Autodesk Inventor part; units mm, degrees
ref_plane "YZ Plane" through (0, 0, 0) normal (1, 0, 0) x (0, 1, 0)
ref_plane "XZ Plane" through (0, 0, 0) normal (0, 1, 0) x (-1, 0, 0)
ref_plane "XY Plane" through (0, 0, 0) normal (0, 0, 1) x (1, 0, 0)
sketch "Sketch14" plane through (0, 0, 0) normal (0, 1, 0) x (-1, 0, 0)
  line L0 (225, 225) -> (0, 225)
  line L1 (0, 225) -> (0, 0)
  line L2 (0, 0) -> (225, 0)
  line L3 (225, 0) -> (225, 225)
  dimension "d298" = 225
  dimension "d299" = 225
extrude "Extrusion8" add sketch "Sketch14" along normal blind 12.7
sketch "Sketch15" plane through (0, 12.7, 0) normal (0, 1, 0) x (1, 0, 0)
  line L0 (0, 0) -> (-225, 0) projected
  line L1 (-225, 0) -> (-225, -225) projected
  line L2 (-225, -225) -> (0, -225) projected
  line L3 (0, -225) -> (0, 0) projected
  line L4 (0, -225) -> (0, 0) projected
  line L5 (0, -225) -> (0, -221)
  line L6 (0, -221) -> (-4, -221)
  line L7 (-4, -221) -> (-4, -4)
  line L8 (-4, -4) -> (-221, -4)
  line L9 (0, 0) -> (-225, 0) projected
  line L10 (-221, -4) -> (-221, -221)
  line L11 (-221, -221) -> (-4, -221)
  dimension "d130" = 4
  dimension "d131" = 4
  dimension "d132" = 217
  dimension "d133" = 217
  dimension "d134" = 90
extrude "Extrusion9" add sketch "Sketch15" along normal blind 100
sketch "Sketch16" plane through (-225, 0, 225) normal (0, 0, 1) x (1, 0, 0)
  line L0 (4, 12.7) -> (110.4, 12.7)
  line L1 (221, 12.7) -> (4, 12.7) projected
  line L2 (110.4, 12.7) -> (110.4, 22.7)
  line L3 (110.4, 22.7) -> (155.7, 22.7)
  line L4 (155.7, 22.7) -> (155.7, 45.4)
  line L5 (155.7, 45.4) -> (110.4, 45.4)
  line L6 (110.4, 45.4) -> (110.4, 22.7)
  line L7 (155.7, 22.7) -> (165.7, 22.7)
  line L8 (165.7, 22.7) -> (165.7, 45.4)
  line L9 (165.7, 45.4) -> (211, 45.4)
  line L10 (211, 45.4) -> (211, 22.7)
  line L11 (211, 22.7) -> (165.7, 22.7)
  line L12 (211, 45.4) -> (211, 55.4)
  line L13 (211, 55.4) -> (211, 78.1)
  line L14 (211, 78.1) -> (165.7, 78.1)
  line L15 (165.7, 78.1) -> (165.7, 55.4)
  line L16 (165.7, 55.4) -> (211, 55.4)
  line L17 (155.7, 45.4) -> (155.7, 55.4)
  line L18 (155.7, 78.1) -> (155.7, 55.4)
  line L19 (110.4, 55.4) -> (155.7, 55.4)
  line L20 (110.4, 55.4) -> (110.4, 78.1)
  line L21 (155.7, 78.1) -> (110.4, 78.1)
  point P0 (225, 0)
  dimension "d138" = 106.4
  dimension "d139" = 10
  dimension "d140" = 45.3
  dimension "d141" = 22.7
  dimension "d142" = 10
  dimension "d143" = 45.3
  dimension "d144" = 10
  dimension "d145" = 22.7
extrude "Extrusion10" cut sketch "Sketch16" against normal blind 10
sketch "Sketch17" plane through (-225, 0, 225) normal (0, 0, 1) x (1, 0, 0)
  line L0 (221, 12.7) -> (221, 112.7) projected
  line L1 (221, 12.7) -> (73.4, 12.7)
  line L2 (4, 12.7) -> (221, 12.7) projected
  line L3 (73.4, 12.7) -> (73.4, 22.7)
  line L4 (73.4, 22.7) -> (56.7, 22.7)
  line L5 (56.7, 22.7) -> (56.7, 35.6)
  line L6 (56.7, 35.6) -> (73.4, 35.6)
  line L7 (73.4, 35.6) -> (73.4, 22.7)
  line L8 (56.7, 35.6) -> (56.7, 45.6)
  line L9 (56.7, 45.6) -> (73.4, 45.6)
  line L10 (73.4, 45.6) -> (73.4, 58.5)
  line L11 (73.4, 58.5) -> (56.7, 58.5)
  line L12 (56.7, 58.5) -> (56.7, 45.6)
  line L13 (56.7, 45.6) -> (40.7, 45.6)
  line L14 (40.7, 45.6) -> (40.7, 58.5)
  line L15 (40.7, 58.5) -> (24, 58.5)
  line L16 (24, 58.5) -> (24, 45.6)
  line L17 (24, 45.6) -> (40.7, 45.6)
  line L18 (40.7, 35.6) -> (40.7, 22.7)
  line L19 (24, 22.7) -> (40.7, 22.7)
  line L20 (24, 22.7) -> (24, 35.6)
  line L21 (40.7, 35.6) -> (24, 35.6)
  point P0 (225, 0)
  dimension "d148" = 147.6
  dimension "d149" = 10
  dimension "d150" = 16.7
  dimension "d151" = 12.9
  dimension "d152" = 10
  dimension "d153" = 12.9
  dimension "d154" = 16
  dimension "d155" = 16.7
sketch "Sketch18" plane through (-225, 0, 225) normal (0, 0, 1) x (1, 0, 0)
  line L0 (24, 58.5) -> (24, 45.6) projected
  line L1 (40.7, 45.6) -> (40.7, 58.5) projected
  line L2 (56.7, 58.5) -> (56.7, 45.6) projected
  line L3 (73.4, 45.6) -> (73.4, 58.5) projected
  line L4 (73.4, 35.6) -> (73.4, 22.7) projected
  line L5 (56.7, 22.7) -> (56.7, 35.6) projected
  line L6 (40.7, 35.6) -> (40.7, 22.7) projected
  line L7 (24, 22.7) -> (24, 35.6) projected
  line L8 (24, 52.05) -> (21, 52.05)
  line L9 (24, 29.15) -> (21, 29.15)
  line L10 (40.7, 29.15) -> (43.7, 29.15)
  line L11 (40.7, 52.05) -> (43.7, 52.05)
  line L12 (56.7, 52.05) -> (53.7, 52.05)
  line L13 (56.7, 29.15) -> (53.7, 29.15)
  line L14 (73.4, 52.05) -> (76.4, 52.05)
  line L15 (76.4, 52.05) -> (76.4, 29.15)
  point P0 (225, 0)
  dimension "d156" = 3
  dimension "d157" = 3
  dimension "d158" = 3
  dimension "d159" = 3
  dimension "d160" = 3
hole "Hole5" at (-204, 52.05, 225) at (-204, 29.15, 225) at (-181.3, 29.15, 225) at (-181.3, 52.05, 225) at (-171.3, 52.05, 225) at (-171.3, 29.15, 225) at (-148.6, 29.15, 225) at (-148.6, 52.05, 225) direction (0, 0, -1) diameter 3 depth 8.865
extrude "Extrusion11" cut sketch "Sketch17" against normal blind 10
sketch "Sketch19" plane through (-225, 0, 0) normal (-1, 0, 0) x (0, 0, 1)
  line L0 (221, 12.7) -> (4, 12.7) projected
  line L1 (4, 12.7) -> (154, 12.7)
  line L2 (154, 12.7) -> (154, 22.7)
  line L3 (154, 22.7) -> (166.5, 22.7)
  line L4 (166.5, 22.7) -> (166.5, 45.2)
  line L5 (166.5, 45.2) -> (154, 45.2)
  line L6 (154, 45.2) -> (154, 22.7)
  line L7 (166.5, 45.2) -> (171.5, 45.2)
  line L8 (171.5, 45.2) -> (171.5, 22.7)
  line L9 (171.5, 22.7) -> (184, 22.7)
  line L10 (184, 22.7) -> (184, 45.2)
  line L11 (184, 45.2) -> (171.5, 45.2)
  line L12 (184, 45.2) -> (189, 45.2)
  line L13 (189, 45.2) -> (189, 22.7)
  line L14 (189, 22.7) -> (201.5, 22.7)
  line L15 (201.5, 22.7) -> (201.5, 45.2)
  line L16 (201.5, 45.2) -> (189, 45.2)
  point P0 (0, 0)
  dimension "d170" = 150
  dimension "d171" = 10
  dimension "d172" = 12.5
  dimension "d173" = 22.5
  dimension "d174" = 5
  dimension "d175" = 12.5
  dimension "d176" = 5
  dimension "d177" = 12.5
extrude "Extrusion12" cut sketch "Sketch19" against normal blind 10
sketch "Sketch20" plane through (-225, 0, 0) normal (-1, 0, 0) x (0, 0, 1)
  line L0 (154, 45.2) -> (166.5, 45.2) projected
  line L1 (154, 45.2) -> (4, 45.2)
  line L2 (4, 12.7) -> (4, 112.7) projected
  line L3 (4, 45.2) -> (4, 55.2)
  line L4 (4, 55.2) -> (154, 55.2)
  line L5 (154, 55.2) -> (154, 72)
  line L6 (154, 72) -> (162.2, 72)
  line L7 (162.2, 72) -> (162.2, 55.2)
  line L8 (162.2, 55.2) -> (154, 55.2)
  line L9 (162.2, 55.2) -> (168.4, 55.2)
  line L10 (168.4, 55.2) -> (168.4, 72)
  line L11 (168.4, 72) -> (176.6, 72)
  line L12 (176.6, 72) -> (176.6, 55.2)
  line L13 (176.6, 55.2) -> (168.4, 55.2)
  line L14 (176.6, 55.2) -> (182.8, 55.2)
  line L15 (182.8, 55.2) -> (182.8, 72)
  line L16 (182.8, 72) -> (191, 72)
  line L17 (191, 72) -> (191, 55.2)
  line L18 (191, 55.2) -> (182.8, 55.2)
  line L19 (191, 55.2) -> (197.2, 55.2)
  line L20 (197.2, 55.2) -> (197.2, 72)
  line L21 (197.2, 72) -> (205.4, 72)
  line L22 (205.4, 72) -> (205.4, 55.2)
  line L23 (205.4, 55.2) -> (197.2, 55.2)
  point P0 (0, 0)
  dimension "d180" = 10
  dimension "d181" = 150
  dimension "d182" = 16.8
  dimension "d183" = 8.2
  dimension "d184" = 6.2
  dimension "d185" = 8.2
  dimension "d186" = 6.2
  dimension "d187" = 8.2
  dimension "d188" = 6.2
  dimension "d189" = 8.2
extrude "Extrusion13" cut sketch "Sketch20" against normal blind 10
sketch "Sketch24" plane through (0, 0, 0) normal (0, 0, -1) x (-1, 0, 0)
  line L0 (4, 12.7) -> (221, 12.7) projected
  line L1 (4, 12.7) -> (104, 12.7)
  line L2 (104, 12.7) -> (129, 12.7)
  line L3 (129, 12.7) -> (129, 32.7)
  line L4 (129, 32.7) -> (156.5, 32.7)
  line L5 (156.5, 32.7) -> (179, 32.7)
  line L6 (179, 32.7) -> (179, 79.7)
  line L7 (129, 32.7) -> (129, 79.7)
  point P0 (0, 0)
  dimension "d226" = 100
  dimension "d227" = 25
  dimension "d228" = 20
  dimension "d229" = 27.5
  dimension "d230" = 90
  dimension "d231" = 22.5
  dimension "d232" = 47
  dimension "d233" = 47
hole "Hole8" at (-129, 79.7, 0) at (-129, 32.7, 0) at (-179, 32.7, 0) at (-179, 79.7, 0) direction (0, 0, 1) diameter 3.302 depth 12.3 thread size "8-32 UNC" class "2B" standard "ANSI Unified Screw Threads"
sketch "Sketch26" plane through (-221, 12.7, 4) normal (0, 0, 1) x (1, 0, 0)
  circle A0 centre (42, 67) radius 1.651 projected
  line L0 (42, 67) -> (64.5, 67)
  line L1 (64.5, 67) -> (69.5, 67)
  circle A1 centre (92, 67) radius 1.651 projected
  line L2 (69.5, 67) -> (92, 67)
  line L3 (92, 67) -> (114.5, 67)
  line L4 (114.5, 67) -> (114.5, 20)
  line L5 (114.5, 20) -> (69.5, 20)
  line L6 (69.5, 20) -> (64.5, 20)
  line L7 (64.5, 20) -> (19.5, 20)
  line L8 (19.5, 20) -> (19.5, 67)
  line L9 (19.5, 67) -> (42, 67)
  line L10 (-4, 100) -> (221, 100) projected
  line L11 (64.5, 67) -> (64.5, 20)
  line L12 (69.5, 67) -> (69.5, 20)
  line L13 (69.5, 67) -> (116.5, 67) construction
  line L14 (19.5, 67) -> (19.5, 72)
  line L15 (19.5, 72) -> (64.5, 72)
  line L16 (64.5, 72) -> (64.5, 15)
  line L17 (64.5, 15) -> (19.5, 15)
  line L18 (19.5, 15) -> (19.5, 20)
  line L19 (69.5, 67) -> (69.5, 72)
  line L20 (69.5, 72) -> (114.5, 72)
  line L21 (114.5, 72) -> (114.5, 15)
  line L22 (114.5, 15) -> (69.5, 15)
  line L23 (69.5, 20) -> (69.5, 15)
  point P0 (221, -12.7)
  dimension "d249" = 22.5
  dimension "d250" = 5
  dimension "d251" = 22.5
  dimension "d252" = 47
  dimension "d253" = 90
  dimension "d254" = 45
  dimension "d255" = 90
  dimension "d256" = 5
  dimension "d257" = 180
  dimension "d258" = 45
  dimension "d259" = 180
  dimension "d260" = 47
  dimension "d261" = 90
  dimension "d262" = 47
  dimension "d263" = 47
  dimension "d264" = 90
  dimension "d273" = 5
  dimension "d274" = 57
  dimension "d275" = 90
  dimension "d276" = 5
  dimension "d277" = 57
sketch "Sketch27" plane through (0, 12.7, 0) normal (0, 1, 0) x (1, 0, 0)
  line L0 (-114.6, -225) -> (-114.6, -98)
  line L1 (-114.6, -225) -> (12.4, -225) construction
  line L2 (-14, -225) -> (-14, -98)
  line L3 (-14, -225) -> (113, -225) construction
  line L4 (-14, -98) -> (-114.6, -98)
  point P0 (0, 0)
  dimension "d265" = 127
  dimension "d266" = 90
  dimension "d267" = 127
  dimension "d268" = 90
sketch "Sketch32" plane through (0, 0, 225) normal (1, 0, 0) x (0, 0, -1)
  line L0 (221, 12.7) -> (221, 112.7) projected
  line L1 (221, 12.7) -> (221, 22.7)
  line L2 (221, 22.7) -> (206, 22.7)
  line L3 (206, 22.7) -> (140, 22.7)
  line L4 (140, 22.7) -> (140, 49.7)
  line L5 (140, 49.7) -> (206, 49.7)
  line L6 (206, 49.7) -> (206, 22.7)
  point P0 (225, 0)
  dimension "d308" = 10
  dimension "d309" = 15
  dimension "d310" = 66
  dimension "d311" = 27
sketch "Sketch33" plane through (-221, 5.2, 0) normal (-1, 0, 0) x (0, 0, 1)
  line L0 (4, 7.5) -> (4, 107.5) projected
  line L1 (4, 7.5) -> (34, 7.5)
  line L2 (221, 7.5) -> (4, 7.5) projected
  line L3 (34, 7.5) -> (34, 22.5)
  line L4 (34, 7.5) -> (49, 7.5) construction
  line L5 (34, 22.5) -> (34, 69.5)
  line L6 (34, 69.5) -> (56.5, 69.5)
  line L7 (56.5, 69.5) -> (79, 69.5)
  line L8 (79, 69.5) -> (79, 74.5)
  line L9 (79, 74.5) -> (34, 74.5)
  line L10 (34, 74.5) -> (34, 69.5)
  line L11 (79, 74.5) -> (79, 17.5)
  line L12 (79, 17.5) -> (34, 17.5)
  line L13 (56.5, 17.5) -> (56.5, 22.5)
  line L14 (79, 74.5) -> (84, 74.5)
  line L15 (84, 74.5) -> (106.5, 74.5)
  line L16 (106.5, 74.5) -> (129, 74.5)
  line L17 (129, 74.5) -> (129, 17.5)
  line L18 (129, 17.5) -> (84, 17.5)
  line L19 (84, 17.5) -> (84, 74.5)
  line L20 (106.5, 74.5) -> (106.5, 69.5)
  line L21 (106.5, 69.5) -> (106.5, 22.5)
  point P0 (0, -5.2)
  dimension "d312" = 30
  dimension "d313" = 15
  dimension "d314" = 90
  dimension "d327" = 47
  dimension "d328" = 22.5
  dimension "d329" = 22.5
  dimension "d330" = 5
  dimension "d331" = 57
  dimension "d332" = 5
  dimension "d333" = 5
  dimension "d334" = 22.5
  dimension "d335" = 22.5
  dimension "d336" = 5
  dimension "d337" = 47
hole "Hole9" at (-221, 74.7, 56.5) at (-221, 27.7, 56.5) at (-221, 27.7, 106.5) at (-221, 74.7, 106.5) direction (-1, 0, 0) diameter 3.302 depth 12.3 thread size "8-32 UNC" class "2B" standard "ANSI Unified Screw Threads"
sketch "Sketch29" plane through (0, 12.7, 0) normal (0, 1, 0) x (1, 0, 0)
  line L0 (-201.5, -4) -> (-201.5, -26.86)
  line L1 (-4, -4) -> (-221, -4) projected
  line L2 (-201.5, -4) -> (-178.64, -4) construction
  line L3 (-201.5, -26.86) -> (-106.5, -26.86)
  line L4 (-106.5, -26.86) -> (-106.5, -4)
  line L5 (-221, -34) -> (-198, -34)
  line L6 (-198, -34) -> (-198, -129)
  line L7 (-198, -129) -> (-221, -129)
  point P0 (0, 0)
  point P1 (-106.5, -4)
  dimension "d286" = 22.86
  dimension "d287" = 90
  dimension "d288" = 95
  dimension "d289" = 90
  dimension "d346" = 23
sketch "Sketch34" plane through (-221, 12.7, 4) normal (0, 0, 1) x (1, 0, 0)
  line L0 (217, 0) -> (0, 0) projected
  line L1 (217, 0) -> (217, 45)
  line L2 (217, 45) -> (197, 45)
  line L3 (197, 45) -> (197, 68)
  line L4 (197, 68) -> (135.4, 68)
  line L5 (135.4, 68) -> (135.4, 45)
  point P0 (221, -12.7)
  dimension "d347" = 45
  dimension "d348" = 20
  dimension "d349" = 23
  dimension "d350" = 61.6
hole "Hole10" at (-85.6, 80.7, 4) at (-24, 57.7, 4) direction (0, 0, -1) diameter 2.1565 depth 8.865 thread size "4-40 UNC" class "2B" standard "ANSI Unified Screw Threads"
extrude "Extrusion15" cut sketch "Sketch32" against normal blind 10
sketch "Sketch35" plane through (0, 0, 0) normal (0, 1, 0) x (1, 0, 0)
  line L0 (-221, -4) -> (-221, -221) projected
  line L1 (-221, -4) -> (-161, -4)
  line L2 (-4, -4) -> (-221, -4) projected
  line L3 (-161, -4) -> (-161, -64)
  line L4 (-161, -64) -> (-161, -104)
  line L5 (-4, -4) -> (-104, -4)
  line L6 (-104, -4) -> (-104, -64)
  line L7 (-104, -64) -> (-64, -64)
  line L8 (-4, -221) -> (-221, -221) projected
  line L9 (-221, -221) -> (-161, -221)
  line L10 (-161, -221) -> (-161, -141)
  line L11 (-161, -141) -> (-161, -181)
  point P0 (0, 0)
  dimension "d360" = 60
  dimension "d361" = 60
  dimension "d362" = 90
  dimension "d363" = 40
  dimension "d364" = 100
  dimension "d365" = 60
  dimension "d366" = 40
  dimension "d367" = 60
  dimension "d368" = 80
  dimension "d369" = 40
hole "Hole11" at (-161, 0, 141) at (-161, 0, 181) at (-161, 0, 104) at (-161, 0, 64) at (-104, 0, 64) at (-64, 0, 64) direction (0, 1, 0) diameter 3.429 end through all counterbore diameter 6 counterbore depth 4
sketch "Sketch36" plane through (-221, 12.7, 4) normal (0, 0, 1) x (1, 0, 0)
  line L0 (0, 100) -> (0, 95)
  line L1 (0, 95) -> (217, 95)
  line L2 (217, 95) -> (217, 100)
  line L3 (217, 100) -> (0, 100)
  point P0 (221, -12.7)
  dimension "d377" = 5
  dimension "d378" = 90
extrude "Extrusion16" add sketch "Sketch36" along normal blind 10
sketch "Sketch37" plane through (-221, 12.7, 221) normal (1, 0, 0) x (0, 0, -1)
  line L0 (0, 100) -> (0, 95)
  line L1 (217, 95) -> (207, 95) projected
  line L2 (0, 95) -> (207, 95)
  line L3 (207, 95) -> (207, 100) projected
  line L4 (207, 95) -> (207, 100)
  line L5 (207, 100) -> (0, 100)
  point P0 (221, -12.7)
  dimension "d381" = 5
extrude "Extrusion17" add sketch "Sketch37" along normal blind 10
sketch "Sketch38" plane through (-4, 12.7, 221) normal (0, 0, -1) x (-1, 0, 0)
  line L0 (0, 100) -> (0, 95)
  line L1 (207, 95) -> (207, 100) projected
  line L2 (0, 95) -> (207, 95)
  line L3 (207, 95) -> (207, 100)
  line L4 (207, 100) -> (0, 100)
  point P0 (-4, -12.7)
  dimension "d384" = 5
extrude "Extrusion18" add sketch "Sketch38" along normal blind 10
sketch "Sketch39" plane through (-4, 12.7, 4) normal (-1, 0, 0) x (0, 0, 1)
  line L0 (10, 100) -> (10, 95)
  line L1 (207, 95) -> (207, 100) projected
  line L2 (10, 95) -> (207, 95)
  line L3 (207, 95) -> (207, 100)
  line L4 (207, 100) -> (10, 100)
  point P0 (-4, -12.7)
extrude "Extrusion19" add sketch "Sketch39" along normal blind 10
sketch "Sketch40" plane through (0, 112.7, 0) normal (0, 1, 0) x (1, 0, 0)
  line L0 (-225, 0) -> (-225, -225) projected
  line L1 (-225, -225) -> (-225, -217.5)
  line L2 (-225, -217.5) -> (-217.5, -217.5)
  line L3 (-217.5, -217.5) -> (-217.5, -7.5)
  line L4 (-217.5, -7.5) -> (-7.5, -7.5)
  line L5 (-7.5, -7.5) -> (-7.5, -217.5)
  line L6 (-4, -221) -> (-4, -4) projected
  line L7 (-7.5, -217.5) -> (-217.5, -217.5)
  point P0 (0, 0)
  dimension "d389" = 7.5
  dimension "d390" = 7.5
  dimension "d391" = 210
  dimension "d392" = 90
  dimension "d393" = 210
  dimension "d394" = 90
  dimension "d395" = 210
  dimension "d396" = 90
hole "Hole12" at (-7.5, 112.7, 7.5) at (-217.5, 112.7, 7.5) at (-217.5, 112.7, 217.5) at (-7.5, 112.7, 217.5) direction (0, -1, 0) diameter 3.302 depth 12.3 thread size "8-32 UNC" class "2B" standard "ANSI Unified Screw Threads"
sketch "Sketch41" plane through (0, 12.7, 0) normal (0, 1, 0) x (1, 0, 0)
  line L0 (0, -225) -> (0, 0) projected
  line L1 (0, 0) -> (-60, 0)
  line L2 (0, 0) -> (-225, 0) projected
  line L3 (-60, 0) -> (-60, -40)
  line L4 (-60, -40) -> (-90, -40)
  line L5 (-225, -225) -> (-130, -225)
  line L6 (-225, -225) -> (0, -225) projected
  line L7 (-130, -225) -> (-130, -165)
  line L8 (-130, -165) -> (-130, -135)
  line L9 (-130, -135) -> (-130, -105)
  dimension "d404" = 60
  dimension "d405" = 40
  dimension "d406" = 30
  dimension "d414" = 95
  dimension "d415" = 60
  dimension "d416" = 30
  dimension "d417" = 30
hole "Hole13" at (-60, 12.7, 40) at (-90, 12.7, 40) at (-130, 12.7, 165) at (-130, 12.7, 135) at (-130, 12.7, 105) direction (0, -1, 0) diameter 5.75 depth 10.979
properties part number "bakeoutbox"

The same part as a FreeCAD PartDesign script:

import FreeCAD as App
import Part
import Sketcher

doc = App.newDocument("Part")
body = doc.addObject("PartDesign::Body", "Body")

# Sketch on XZ plane
sketch1 = doc.addObject("Sketcher::SketchObject", "Sketch")
body.addObject(sketch1)
sketch1.AttachmentSupport = (doc.XZ_Plane, [""])
sketch1.MapMode = "FlatFace"
sketch1.addGeometry([
    Part.LineSegment(App.Vector(-225, 0, 0), App.Vector(-225, 225, 0)),
    Part.LineSegment(App.Vector(-225, 225, 0), App.Vector(0, 225, 0)),
    Part.LineSegment(App.Vector(0, 225, 0), App.Vector(0, 0, 0)),
    Part.LineSegment(App.Vector(0, 0, 0), App.Vector(-225, 0, 0)),
], False)
sketch1.addConstraint([
    Sketcher.Constraint("Coincident", 0, 2, 1, 1),
    Sketcher.Constraint("Coincident", 1, 2, 2, 1),
    Sketcher.Constraint("Coincident", 2, 2, 3, 1),
    Sketcher.Constraint("Coincident", 3, 2, 0, 1),
    Sketcher.Constraint("Vertical", 0),
    Sketcher.Constraint("Horizontal", 1),
    Sketcher.Constraint("Vertical", 2),
    Sketcher.Constraint("Horizontal", 3),
    Sketcher.Constraint("Coincident", 2, 2, -1, 1),
    Sketcher.Constraint("Equal", 3, 0),
    Sketcher.Constraint("DistanceX", 1, 1, 1, 2, 225.0),
])
pad1 = doc.addObject("PartDesign::Pad", "Pad")
body.addObject(pad1)
pad1.Profile = sketch1
pad1.Length = 12.7
pad1.Reversed = True

# Sketch on XZ plane
sketch2 = doc.addObject("Sketcher::SketchObject", "Sketch001")
body.addObject(sketch2)
sketch2.AttachmentSupport = (doc.XZ_Plane, [""])
sketch2.MapMode = "FlatFace"
sketch2.AttachmentOffset = App.Placement(App.Vector(0, 0, -12.7), App.Rotation())
sketch2.addGeometry([
    Part.LineSegment(App.Vector(0, 221, 0), App.Vector(0, 0, 0)),  # 0
    Part.LineSegment(App.Vector(0, 0, 0), App.Vector(-225, 0, 0)),  # 1
    Part.LineSegment(App.Vector(-225, 0, 0), App.Vector(-225, 225, 0)),  # 2
    Part.LineSegment(App.Vector(-225, 225, 0), App.Vector(0, 225, 0)),  # 3
    Part.LineSegment(App.Vector(0, 225, 0), App.Vector(0, 221, 0)),  # 4
    Part.LineSegment(App.Vector(-4, 4, 0), App.Vector(-4, 221, 0)),  # 5
    Part.LineSegment(App.Vector(-4, 221, 0), App.Vector(-221, 221, 0)),  # 6
    Part.LineSegment(App.Vector(-221, 221, 0), App.Vector(-221, 4, 0)),  # 7
    Part.LineSegment(App.Vector(-221, 4, 0), App.Vector(-4, 4, 0)),  # 8
], False)
sketch2.addConstraint([
    Sketcher.Constraint("Coincident", 0, 2, 1, 1),
    Sketcher.Constraint("Coincident", 1, 2, 2, 1),
    Sketcher.Constraint("Coincident", 2, 2, 3, 1),
    Sketcher.Constraint("Coincident", 3, 2, 4, 1),
    Sketcher.Constraint("Coincident", 4, 2, 0, 1),
    Sketcher.Constraint("Coincident", 5, 2, 6, 1),
    Sketcher.Constraint("Coincident", 6, 2, 7, 1),
    Sketcher.Constraint("Coincident", 7, 2, 8, 1),
    Sketcher.Constraint("Coincident", 8, 2, 5, 1),
    Sketcher.Constraint("Vertical", 0),
    Sketcher.Constraint("Horizontal", 1),
    Sketcher.Constraint("Vertical", 2),
    Sketcher.Constraint("Horizontal", 3),
    Sketcher.Constraint("Vertical", 4),
    Sketcher.Constraint("Vertical", 5),
    Sketcher.Constraint("Horizontal", 6),
    Sketcher.Constraint("Vertical", 7),
    Sketcher.Constraint("Horizontal", 8),
    Sketcher.Constraint("Coincident", 0, 2, -1, 1),
    Sketcher.Constraint("Horizontal", 4, 2, 5, 2),
    Sketcher.Constraint("Equal", 3, 2),
    Sketcher.Constraint("Equal", 8, 5),
    Sketcher.Constraint("DistanceX", 6, 2, 6, 1, 217.0),
    Sketcher.Constraint("DistanceY", 4, 2, 4, 1, 4.0),
    Sketcher.Constraint("DistanceX", 5, 2, -1, 1, 4.0),
    Sketcher.Constraint("DistanceY", -1, 1, 7, 2, 4.0),
])
pad2 = doc.addObject("PartDesign::Pad", "Pad001")
body.addObject(pad2)
pad2.Profile = sketch2
pad2.Length = 100
pad2.Reversed = True

# Sketch on XY plane
sketch3 = doc.addObject("Sketcher::SketchObject", "Sketch002")
body.addObject(sketch3)
sketch3.AttachmentSupport = (doc.XY_Plane, [""])
sketch3.MapMode = "FlatFace"
sketch3.AttachmentOffset = App.Placement(App.Vector(0, 0, 225), App.Rotation())
sketch3.addGeometry([
    Part.LineSegment(App.Vector(-115, 45, 0), App.Vector(-115, 23, 0)),  # 0
    Part.LineSegment(App.Vector(-115, 23, 0), App.Vector(-69, 23, 0)),  # 1
    Part.LineSegment(App.Vector(-69, 23, 0), App.Vector(-69, 45, 0)),  # 2
    Part.LineSegment(App.Vector(-69, 45, 0), App.Vector(-115, 45, 0)),  # 3
    Part.LineSegment(App.Vector(-115, 55, 0), App.Vector(-69, 55, 0)),  # 4
    Part.LineSegment(App.Vector(-69, 55, 0), App.Vector(-69, 78, 0)),  # 5
    Part.LineSegment(App.Vector(-69, 78, 0), App.Vector(-115, 78, 0)),  # 6
    Part.LineSegment(App.Vector(-115, 78, 0), App.Vector(-115, 55, 0)),  # 7
    Part.LineSegment(App.Vector(-59, 55, 0), App.Vector(-14, 55, 0)),  # 8
    Part.LineSegment(App.Vector(-14, 55, 0), App.Vector(-14, 78, 0)),  # 9
    Part.LineSegment(App.Vector(-14, 78, 0), App.Vector(-59, 78, 0)),  # 10
    Part.LineSegment(App.Vector(-59, 78, 0), App.Vector(-59, 55, 0)),  # 11
    Part.LineSegment(App.Vector(-59, 45, 0), App.Vector(-59, 23, 0)),  # 12
    Part.LineSegment(App.Vector(-59, 23, 0), App.Vector(-14, 23, 0)),  # 13
    Part.LineSegment(App.Vector(-14, 23, 0), App.Vector(-14, 45, 0)),  # 14
    Part.LineSegment(App.Vector(-14, 45, 0), App.Vector(-59, 45, 0)),  # 15
], False)
sketch3.addConstraint([
    Sketcher.Constraint("Coincident", 0, 2, 1, 1),
    Sketcher.Constraint("Coincident", 1, 2, 2, 1),
    Sketcher.Constraint("Coincident", 2, 2, 3, 1),
    Sketcher.Constraint("Coincident", 3, 2, 0, 1),
    Sketcher.Constraint("Coincident", 4, 2, 5, 1),
    Sketcher.Constraint("Coincident", 5, 2, 6, 1),
    Sketcher.Constraint("Coincident", 6, 2, 7, 1),
    Sketcher.Constraint("Coincident", 7, 2, 4, 1),
    Sketcher.Constraint("Coincident", 8, 2, 9, 1),
    Sketcher.Constraint("Coincident", 9, 2, 10, 1),
    Sketcher.Constraint("Coincident", 10, 2, 11, 1),
    Sketcher.Constraint("Coincident", 11, 2, 8, 1),
    Sketcher.Constraint("Coincident", 12, 2, 13, 1),
    Sketcher.Constraint("Coincident", 13, 2, 14, 1),
    Sketcher.Constraint("Coincident", 14, 2, 15, 1),
    Sketcher.Constraint("Coincident", 15, 2, 12, 1),
    Sketcher.Constraint("Vertical", 0),
    Sketcher.Constraint("Horizontal", 1),
    Sketcher.Constraint("Vertical", 2),
    Sketcher.Constraint("Horizontal", 3),
    Sketcher.Constraint("Horizontal", 4),
    Sketcher.Constraint("Vertical", 5),
    Sketcher.Constraint("Horizontal", 6),
    Sketcher.Constraint("Vertical", 7),
    Sketcher.Constraint("Horizontal", 8),
    Sketcher.Constraint("Vertical", 9),
    Sketcher.Constraint("Horizontal", 10),
    Sketcher.Constraint("Vertical", 11),
    Sketcher.Constraint("Vertical", 12),
    Sketcher.Constraint("Horizontal", 13),
    Sketcher.Constraint("Vertical", 14),
    Sketcher.Constraint("Horizontal", 15),
    Sketcher.Constraint("Horizontal", 7, 2, 8, 2),
    Sketcher.Constraint("Horizontal", 6, 2, 9, 2),
    Sketcher.Constraint("Horizontal", 1, 2, 12, 2),
    Sketcher.Constraint("Horizontal", 3, 2, 14, 2),
    Sketcher.Constraint("Vertical", 2, 2, 4, 2),
    Sketcher.Constraint("Vertical", 3, 2, 6, 2),
    Sketcher.Constraint("Vertical", 11, 2, 12, 2),
    Sketcher.Constraint("Vertical", 9, 2, 13, 2),
    Sketcher.Constraint("Equal", 6, 8),
    Sketcher.Constraint("Equal", 2, 5),
    Sketcher.Constraint("DistanceX", 1, 1, 1, 2, 45.3),
    Sketcher.Constraint("DistanceY", 0, 2, 0, 1, 22.7),
    Sketcher.Constraint("DistanceY", 2, 2, 4, 2, 10.0),
    Sketcher.Constraint("DistanceX", 5, 2, 10, 2, 10.0),
    Sketcher.Constraint("DistanceY", -1, 1, 0, 2, 22.7),
    Sketcher.Constraint("DistanceX", 8, 2, -1, 1, 14.0),
])
pocket1 = doc.addObject("PartDesign::Pocket", "Pocket")
body.addObject(pocket1)
pocket1.Profile = sketch3
pocket1.Length = 10

# Sketch on XY plane
sketch4 = doc.addObject("Sketcher::SketchObject", "Sketch003")
body.addObject(sketch4)
sketch4.AttachmentSupport = (doc.XY_Plane, [""])
sketch4.MapMode = "FlatFace"
sketch4.AttachmentOffset = App.Placement(App.Vector(0, 0, 225), App.Rotation())
sketch4.addGeometry([
    Part.Circle(App.Vector(-204, 52, 0), App.Vector(0, 0, 1), 1.5),  # 0
    Part.Circle(App.Vector(-204, 29.1, 0), App.Vector(0, 0, 1), 1.5),  # 1
    Part.Circle(App.Vector(-181.3, 29.1, 0), App.Vector(0, 0, 1), 1.5),  # 2
    Part.Circle(App.Vector(-181.3, 52, 0), App.Vector(0, 0, 1), 1.5),  # 3
    Part.Circle(App.Vector(-171.3, 52, 0), App.Vector(0, 0, 1), 1.5),  # 4
    Part.Circle(App.Vector(-171.3, 29.1, 0), App.Vector(0, 0, 1), 1.5),  # 5
    Part.Circle(App.Vector(-148.6, 29.1, 0), App.Vector(0, 0, 1), 1.5),  # 6
    Part.Circle(App.Vector(-148.6, 52, 0), App.Vector(0, 0, 1), 1.5),  # 7
], False)
sketch4.addConstraint([
    Sketcher.Constraint("Equal", 0, 1),
    Sketcher.Constraint("Equal", 1, 2),
    Sketcher.Constraint("Equal", 2, 3),
    Sketcher.Constraint("Equal", 3, 4),
    Sketcher.Constraint("Equal", 4, 5),
    Sketcher.Constraint("Equal", 5, 6),
    Sketcher.Constraint("Equal", 6, 7),
    Sketcher.Constraint("Horizontal", 1, 3, 2, 3),
    Sketcher.Constraint("Horizontal", 0, 3, 3, 3),
    Sketcher.Constraint("Horizontal", 3, 3, 4, 3),
    Sketcher.Constraint("Horizontal", 2, 3, 5, 3),
    Sketcher.Constraint("Horizontal", 5, 3, 6, 3),
    Sketcher.Constraint("Horizontal", 4, 3, 7, 3),
    Sketcher.Constraint("Vertical", 0, 3, 1, 3),
    Sketcher.Constraint("Vertical", 2, 3, 3, 3),
    Sketcher.Constraint("Vertical", 4, 3, 5, 3),
    Sketcher.Constraint("Vertical", 6, 3, 7, 3),
    Sketcher.Constraint("Diameter", 0, 3.0),
    Sketcher.Constraint("DistanceX", 0, 3, -1, 1, 204.0),
    Sketcher.Constraint("DistanceX", 3, 3, 4, 3, 10.0),
    Sketcher.Constraint("DistanceX", 2, 3, -1, 1, 181.3),
    Sketcher.Constraint("DistanceX", 6, 3, -1, 1, 148.6),
    Sketcher.Constraint("DistanceY", 1, 3, 0, 3, 22.9),
    Sketcher.Constraint("DistanceY", -1, 1, 0, 3, 52.05),
])
doc.recompute()
hole = doc.addObject("PartDesign::Hole", "Hole")
body.addObject(hole)
hole.Profile = sketch4
hole.ThreadType = "None"
hole.Diameter = 3
hole.DepthType = "Dimension"
hole.Depth = 8.865
hole.DrillPoint = "Flat"

# Sketch on XY plane
sketch5 = doc.addObject("Sketcher::SketchObject", "Sketch004")
body.addObject(sketch5)
sketch5.AttachmentSupport = (doc.XY_Plane, [""])
sketch5.MapMode = "FlatFace"
sketch5.AttachmentOffset = App.Placement(App.Vector(0, 0, 225), App.Rotation())
sketch5.addGeometry([
    Part.LineSegment(App.Vector(-201, 46, 0), App.Vector(-184, 46, 0)),  # 0
    Part.LineSegment(App.Vector(-184, 46, 0), App.Vector(-184, 58, 0)),  # 1
    Part.LineSegment(App.Vector(-184, 58, 0), App.Vector(-201, 58, 0)),  # 2
    Part.LineSegment(App.Vector(-201, 58, 0), App.Vector(-201, 46, 0)),  # 3
    Part.LineSegment(App.Vector(-168, 58, 0), App.Vector(-168, 46, 0)),  # 4
    Part.LineSegment(App.Vector(-168, 46, 0), App.Vector(-152, 46, 0)),  # 5
    Part.LineSegment(App.Vector(-152, 46, 0), App.Vector(-152, 58, 0)),  # 6
    Part.LineSegment(App.Vector(-152, 58, 0), App.Vector(-168, 58, 0)),  # 7
    Part.LineSegment(App.Vector(-168, 23, 0), App.Vector(-152, 23, 0)),  # 8
    Part.LineSegment(App.Vector(-152, 23, 0), App.Vector(-152, 36, 0)),  # 9
    Part.LineSegment(App.Vector(-152, 36, 0), App.Vector(-168, 36, 0)),  # 10
    Part.LineSegment(App.Vector(-168, 36, 0), App.Vector(-168, 23, 0)),  # 11
    Part.LineSegment(App.Vector(-184, 23, 0), App.Vector(-184, 36, 0)),  # 12
    Part.LineSegment(App.Vector(-184, 36, 0), App.Vector(-201, 36, 0)),  # 13
    Part.LineSegment(App.Vector(-201, 36, 0), App.Vector(-201, 23, 0)),  # 14
    Part.LineSegment(App.Vector(-201, 23, 0), App.Vector(-184, 23, 0)),  # 15
], False)
sketch5.addConstraint([
    Sketcher.Constraint("Coincident", 0, 2, 1, 1),
    Sketcher.Constraint("Coincident", 1, 2, 2, 1),
    Sketcher.Constraint("Coincident", 2, 2, 3, 1),
    Sketcher.Constraint("Coincident", 3, 2, 0, 1),
    Sketcher.Constraint("Coincident", 4, 2, 5, 1),
    Sketcher.Constraint("Coincident", 5, 2, 6, 1),
    Sketcher.Constraint("Coincident", 6, 2, 7, 1),
    Sketcher.Constraint("Coincident", 7, 2, 4, 1),
    Sketcher.Constraint("Coincident", 8, 2, 9, 1),
    Sketcher.Constraint("Coincident", 9, 2, 10, 1),
    Sketcher.Constraint("Coincident", 10, 2, 11, 1),
    Sketcher.Constraint("Coincident", 11, 2, 8, 1),
    Sketcher.Constraint("Coincident", 12, 2, 13, 1),
    Sketcher.Constraint("Coincident", 13, 2, 14, 1),
    Sketcher.Constraint("Coincident", 14, 2, 15, 1),
    Sketcher.Constraint("Coincident", 15, 2, 12, 1),
    Sketcher.Constraint("Horizontal", 0),
    Sketcher.Constraint("Vertical", 1),
    Sketcher.Constraint("Horizontal", 2),
    Sketcher.Constraint("Vertical", 3),
    Sketcher.Constraint("Vertical", 4),
    Sketcher.Constraint("Horizontal", 5),
    Sketcher.Constraint("Vertical", 6),
    Sketcher.Constraint("Horizontal", 7),
    Sketcher.Constraint("Horizontal", 8),
    Sketcher.Constraint("Vertical", 9),
    Sketcher.Constraint("Horizontal", 10),
    Sketcher.Constraint("Vertical", 11),
    Sketcher.Constraint("Vertical", 12),
    Sketcher.Constraint("Horizontal", 13),
    Sketcher.Constraint("Vertical", 14),
    Sketcher.Constraint("Horizontal", 15),
    Sketcher.Constraint("Horizontal", 3, 2, 4, 2),
    Sketcher.Constraint("Horizontal", 2, 2, 6, 2),
    Sketcher.Constraint("Horizontal", 10, 2, 12, 2),
    Sketcher.Constraint("Horizontal", 11, 2, 14, 2),
    Sketcher.Constraint("Vertical", 6, 2, 8, 2),
    Sketcher.Constraint("Vertical", 7, 2, 10, 2),
    Sketcher.Constraint("Vertical", 1, 2, 12, 2),
    Sketcher.Constraint("Vertical", 3, 2, 13, 2),
    Sketcher.Constraint("Equal", 2, 5),
    Sketcher.Constraint("Equal", 6, 9),
    Sketcher.Constraint("DistanceX", 0, 1, 0, 2, 16.7),
    Sketcher.Constraint("DistanceY", 1, 1, 1, 2, 12.9),
    Sketcher.Constraint("DistanceX", 0, 2, 4, 2, 16.0),
    Sketcher.Constraint("DistanceY", 9, 2, 5, 2, 10.0),
    Sketcher.Constraint("DistanceX", 2, 2, -1, 1, 201.0),
    Sketcher.Constraint("DistanceY", -1, 1, 0, 2, 45.6),
])
pocket2 = doc.addObject("PartDesign::Pocket", "Pocket001")
body.addObject(pocket2)
pocket2.Profile = sketch5
pocket2.Length = 10

# Sketch on YZ plane
sketch6 = doc.addObject("Sketcher::SketchObject", "Sketch005")
body.addObject(sketch6)
sketch6.AttachmentSupport = (doc.YZ_Plane, [""])
sketch6.MapMode = "FlatFace"
sketch6.AttachmentOffset = App.Placement(App.Vector(0, 0, -225), App.Rotation())
sketch6.addGeometry([
    Part.LineSegment(App.Vector(45, 154, 0), App.Vector(23, 154, 0)),  # 0
    Part.LineSegment(App.Vector(23, 154, 0), App.Vector(23, 166, 0)),  # 1
    Part.LineSegment(App.Vector(23, 166, 0), App.Vector(45, 166, 0)),  # 2
    Part.LineSegment(App.Vector(45, 166, 0), App.Vector(45, 154, 0)),  # 3
    Part.LineSegment(App.Vector(45, 202, 0), App.Vector(45, 189, 0)),  # 4
    Part.LineSegment(App.Vector(45, 189, 0), App.Vector(23, 189, 0)),  # 5
    Part.LineSegment(App.Vector(23, 189, 0), App.Vector(23, 202, 0)),  # 6
    Part.LineSegment(App.Vector(23, 202, 0), App.Vector(45, 202, 0)),  # 7
    Part.LineSegment(App.Vector(45, 184, 0), App.Vector(45, 172, 0)),  # 8
    Part.LineSegment(App.Vector(45, 172, 0), App.Vector(23, 172, 0)),  # 9
    Part.LineSegment(App.Vector(23, 172, 0), App.Vector(23, 184, 0)),  # 10
    Part.LineSegment(App.Vector(23, 184, 0), App.Vector(45, 184, 0)),  # 11
], False)
sketch6.addConstraint([
    Sketcher.Constraint("Coincident", 0, 2, 1, 1),
    Sketcher.Constraint("Coincident", 1, 2, 2, 1),
    Sketcher.Constraint("Coincident", 2, 2, 3, 1),
    Sketcher.Constraint("Coincident", 3, 2, 0, 1),
    Sketcher.Constraint("Coincident", 4, 2, 5, 1),
    Sketcher.Constraint("Coincident", 5, 2, 6, 1),
    Sketcher.Constraint("Coincident", 6, 2, 7, 1),
    Sketcher.Constraint("Coincident", 7, 2, 4, 1),
    Sketcher.Constraint("Coincident", 8, 2, 9, 1),
    Sketcher.Constraint("Coincident", 9, 2, 10, 1),
    Sketcher.Constraint("Coincident", 10, 2, 11, 1),
    Sketcher.Constraint("Coincident", 11, 2, 8, 1),
    Sketcher.Constraint("Horizontal", 0),
    Sketcher.Constraint("Vertical", 1),
    Sketcher.Constraint("Horizontal", 2),
    Sketcher.Constraint("Vertical", 3),
    Sketcher.Constraint("Vertical", 4),
    Sketcher.Constraint("Horizontal", 5),
    Sketcher.Constraint("Vertical", 6),
    Sketcher.Constraint("Horizontal", 7),
    Sketcher.Constraint("Vertical", 8),
    Sketcher.Constraint("Horizontal", 9),
    Sketcher.Constraint("Vertical", 10),
    Sketcher.Constraint("Horizontal", 11),
    Sketcher.Constraint("Vertical", 3, 2, 4, 2),
    Sketcher.Constraint("Vertical", 1, 2, 5, 2),
    Sketcher.Constraint("Vertical", 7, 2, 8, 2),
    Sketcher.Constraint("Vertical", 6, 2, 9, 2),
    Sketcher.Constraint("Equal", 3, 4),
    Sketcher.Constraint("Equal", 6, 8),
    Sketcher.Constraint("DistanceX", 0, 2, 0, 1, 22.5),
    Sketcher.Constraint("DistanceY", 1, 1, 1, 2, 12.5),
    Sketcher.Constraint("DistanceY", 2, 2, 8, 2, 5.0),
    Sketcher.Constraint("DistanceY", 10, 2, 5, 2, 5.0),
    Sketcher.Constraint("DistanceY", -1, 1, 0, 2, 154.0),
    Sketcher.Constraint("DistanceX", -1, 1, 0, 2, 22.7),
])
pocket3 = doc.addObject("PartDesign::Pocket", "Pocket002")
body.addObject(pocket3)
pocket3.Profile = sketch6
pocket3.Length = 10
pocket3.Reversed = True

# Sketch on YZ plane
sketch7 = doc.addObject("Sketcher::SketchObject", "Sketch006")
body.addObject(sketch7)
sketch7.AttachmentSupport = (doc.YZ_Plane, [""])
sketch7.MapMode = "FlatFace"
sketch7.AttachmentOffset = App.Placement(App.Vector(0, 0, -225), App.Rotation())
sketch7.addGeometry([
    Part.LineSegment(App.Vector(72, 197, 0), App.Vector(55, 197, 0)),  # 0
    Part.LineSegment(App.Vector(55, 197, 0), App.Vector(55, 205, 0)),  # 1
    Part.LineSegment(App.Vector(55, 205, 0), App.Vector(72, 205, 0)),  # 2
    Part.LineSegment(App.Vector(72, 205, 0), App.Vector(72, 197, 0)),  # 3
    Part.LineSegment(App.Vector(72, 183, 0), App.Vector(55, 183, 0)),  # 4
    Part.LineSegment(App.Vector(55, 183, 0), App.Vector(55, 191, 0)),  # 5
    Part.LineSegment(App.Vector(55, 191, 0), App.Vector(72, 191, 0)),  # 6
    Part.LineSegment(App.Vector(72, 191, 0), App.Vector(72, 183, 0)),  # 7
    Part.LineSegment(App.Vector(72, 168, 0), App.Vector(55, 168, 0)),  # 8
    Part.LineSegment(App.Vector(55, 168, 0), App.Vector(55, 177, 0)),  # 9
    Part.LineSegment(App.Vector(55, 177, 0), App.Vector(72, 177, 0)),  # 10
    Part.LineSegment(App.Vector(72, 177, 0), App.Vector(72, 168, 0)),  # 11
    Part.LineSegment(App.Vector(72, 154, 0), App.Vector(55, 154, 0)),  # 12
    Part.LineSegment(App.Vector(55, 154, 0), App.Vector(55, 162, 0)),  # 13
    Part.LineSegment(App.Vector(55, 162, 0), App.Vector(72, 162, 0)),  # 14
    Part.LineSegment(App.Vector(72, 162, 0), App.Vector(72, 154, 0)),  # 15
], False)
sketch7.addConstraint([
    Sketcher.Constraint("Coincident", 0, 2, 1, 1),
    Sketcher.Constraint("Coincident", 1, 2, 2, 1),
    Sketcher.Constraint("Coincident", 2, 2, 3, 1),
    Sketcher.Constraint("Coincident", 3, 2, 0, 1),
    Sketcher.Constraint("Coincident", 4, 2, 5, 1),
    Sketcher.Constraint("Coincident", 5, 2, 6, 1),
    Sketcher.Constraint("Coincident", 6, 2, 7, 1),
    Sketcher.Constraint("Coincident", 7, 2, 4, 1),
    Sketcher.Constraint("Coincident", 8, 2, 9, 1),
    Sketcher.Constraint("Coincident", 9, 2, 10, 1),
    Sketcher.Constraint("Coincident", 10, 2, 11, 1),
    Sketcher.Constraint("Coincident", 11, 2, 8, 1),
    Sketcher.Constraint("Coincident", 12, 2, 13, 1),
    Sketcher.Constraint("Coincident", 13, 2, 14, 1),
    Sketcher.Constraint("Coincident", 14, 2, 15, 1),
    Sketcher.Constraint("Coincident", 15, 2, 12, 1),
    Sketcher.Constraint("Horizontal", 0),
    Sketcher.Constraint("Vertical", 1),
    Sketcher.Constraint("Horizontal", 2),
    Sketcher.Constraint("Vertical", 3),
    Sketcher.Constraint("Horizontal", 4),
    Sketcher.Constraint("Vertical", 5),
    Sketcher.Constraint("Horizontal", 6),
    Sketcher.Constraint("Vertical", 7),
    Sketcher.Constraint("Horizontal", 8),
    Sketcher.Constraint("Vertical", 9),
    Sketcher.Constraint("Horizontal", 10),
    Sketcher.Constraint("Vertical", 11),
    Sketcher.Constraint("Horizontal", 12),
    Sketcher.Constraint("Vertical", 13),
    Sketcher.Constraint("Horizontal", 14),
    Sketcher.Constraint("Vertical", 15),
    Sketcher.Constraint("Vertical", 1, 2, 4, 2),
    Sketcher.Constraint("Vertical", 3, 2, 6, 2),
    Sketcher.Constraint("Vertical", 5, 2, 8, 2),
    Sketcher.Constraint("Vertical", 7, 2, 10, 2),
    Sketcher.Constraint("Vertical", 9, 2, 12, 2),
    Sketcher.Constraint("Vertical", 11, 2, 14, 2),
    Sketcher.Constraint("Equal", 3, 5),
    Sketcher.Constraint("Equal", 7, 9),
    Sketcher.Constraint("Equal", 11, 13),
    Sketcher.Constraint("DistanceX", 0, 2, 0, 1, 16.8),
    Sketcher.Constraint("DistanceY", 1, 1, 1, 2, 8.2),
    Sketcher.Constraint("DistanceY", 5, 2, 0, 2, 6.2),
    Sketcher.Constraint("DistanceY", 9, 2, 4, 2, 6.2),
    Sketcher.Constraint("DistanceY", 13, 2, 8, 2, 6.2),
    Sketcher.Constraint("DistanceX", -1, 1, 2, 2, 72.0),
    Sketcher.Constraint("DistanceY", -1, 1, 5, 2, 191.0),
])
pocket4 = doc.addObject("PartDesign::Pocket", "Pocket003")
body.addObject(pocket4)
pocket4.Profile = sketch7
pocket4.Length = 10
pocket4.Reversed = True

# Sketch on XY plane
sketch8 = doc.addObject("Sketcher::SketchObject", "Sketch007")
body.addObject(sketch8)
sketch8.AttachmentSupport = (doc.XY_Plane, [""])
sketch8.MapMode = "FlatFace"
sketch8.addGeometry([
    Part.Circle(App.Vector(-129, 79.7, 0), App.Vector(0, 0, 1), 1.7),
    Part.Circle(App.Vector(-129, 32.7, 0), App.Vector(0, 0, 1), 1.7),
    Part.Circle(App.Vector(-179, 32.7, 0), App.Vector(0, 0, 1), 1.7),
    Part.Circle(App.Vector(-179, 79.7, 0), App.Vector(0, 0, 1), 1.7),
], False)
sketch8.addConstraint([
    Sketcher.Constraint("Equal", 0, 1),
    Sketcher.Constraint("Equal", 1, 2),
    Sketcher.Constraint("Equal", 2, 3),
    Sketcher.Constraint("Horizontal", 1, 3, 2, 3),
    Sketcher.Constraint("Horizontal", 0, 3, 3, 3),
    Sketcher.Constraint("Vertical", 0, 3, 1, 3),
    Sketcher.Constraint("Vertical", 2, 3, 3, 3),
    Sketcher.Constraint("Diameter", 0, 3.302),
    Sketcher.Constraint("DistanceX", 0, 3, -1, 1, 129.0),
    Sketcher.Constraint("DistanceX", 2, 3, -1, 1, 179.0),
    Sketcher.Constraint("DistanceY", 1, 3, 0, 3, 47.0),
    Sketcher.Constraint("DistanceY", -1, 1, 0, 3, 79.7),
])
doc.recompute()
hole2 = doc.addObject("PartDesign::Hole", "Hole001")
body.addObject(hole2)
hole2.Profile = sketch8
hole2.ThreadType = "None"
hole2.Diameter = 3.302
hole2.DepthType = "Dimension"
hole2.Depth = 12.3
hole2.DrillPoint = "Flat"
hole2.Reversed = True

# Sketch on YZ plane
sketch9 = doc.addObject("Sketcher::SketchObject", "Sketch008")
body.addObject(sketch9)
sketch9.AttachmentSupport = (doc.YZ_Plane, [""])
sketch9.MapMode = "FlatFace"
sketch9.AttachmentOffset = App.Placement(App.Vector(0, 0, -221), App.Rotation())
sketch9.addGeometry([
    Part.Circle(App.Vector(74.7, 56.5, 0), App.Vector(0, 0, 1), 1.7),
    Part.Circle(App.Vector(27.7, 56.5, 0), App.Vector(0, 0, 1), 1.7),
    Part.Circle(App.Vector(27.7, 106.5, 0), App.Vector(0, 0, 1), 1.7),
    Part.Circle(App.Vector(74.7, 106.5, 0), App.Vector(0, 0, 1), 1.7),
], False)
sketch9.addConstraint([
    Sketcher.Constraint("Equal", 0, 1),
    Sketcher.Constraint("Equal", 1, 2),
    Sketcher.Constraint("Equal", 2, 3),
    Sketcher.Constraint("Horizontal", 0, 3, 1, 3),
    Sketcher.Constraint("Horizontal", 2, 3, 3, 3),
    Sketcher.Constraint("Vertical", 1, 3, 2, 3),
    Sketcher.Constraint("Vertical", 0, 3, 3, 3),
    Sketcher.Constraint("Diameter", 0, 3.302),
    Sketcher.Constraint("DistanceX", 1, 3, 0, 3, 47.0),
    Sketcher.Constraint("DistanceY", 1, 3, 2, 3, 50.0),
    Sketcher.Constraint("DistanceX", -1, 1, 0, 3, 74.7),
    Sketcher.Constraint("DistanceY", -1, 1, 0, 3, 56.5),
])
doc.recompute()
hole3 = doc.addObject("PartDesign::Hole", "Hole002")
body.addObject(hole3)
hole3.Profile = sketch9
hole3.ThreadType = "None"
hole3.Diameter = 3.302
hole3.DepthType = "Dimension"
hole3.Depth = 12.3
hole3.DrillPoint = "Flat"

# Sketch on XY plane
sketch10 = doc.addObject("Sketcher::SketchObject", "Sketch009")
body.addObject(sketch10)
sketch10.AttachmentSupport = (doc.XY_Plane, [""])
sketch10.MapMode = "FlatFace"
sketch10.AttachmentOffset = App.Placement(App.Vector(0, 0, 4), App.Rotation())
sketch10.addGeometry([
    Part.Circle(App.Vector(-85.6, 80.7, 0), App.Vector(0, 0, 1), 1.1),
    Part.Circle(App.Vector(-24, 57.7, 0), App.Vector(0, 0, 1), 1.1),
], False)
sketch10.addConstraint([
    Sketcher.Constraint("Equal", 0, 1),
    Sketcher.Constraint("DistanceX", 1, 3, -1, 1, 24.0),
    Sketcher.Constraint("DistanceY", 1, 3, 0, 3, 23.0),
    Sketcher.Constraint("Diameter", 0, 2.1565),
    Sketcher.Constraint("DistanceX", 0, 3, -1, 1, 85.6),
    Sketcher.Constraint("DistanceY", -1, 1, 0, 3, 80.7),
])
doc.recompute()
hole4 = doc.addObject("PartDesign::Hole", "Hole003")
body.addObject(hole4)
hole4.Profile = sketch10
hole4.ThreadType = "None"
hole4.Diameter = 2.1565
hole4.DepthType = "Dimension"
hole4.Depth = 8.865
hole4.DrillPoint = "Flat"

# Sketch on YZ plane
sketch11 = doc.addObject("Sketcher::SketchObject", "Sketch010")
body.addObject(sketch11)
sketch11.AttachmentSupport = (doc.YZ_Plane, [""])
sketch11.MapMode = "FlatFace"
sketch11.addGeometry([
    Part.LineSegment(App.Vector(23, 85, 0), App.Vector(23, 19, 0)),
    Part.LineSegment(App.Vector(23, 19, 0), App.Vector(50, 19, 0)),
    Part.LineSegment(App.Vector(50, 19, 0), App.Vector(50, 85, 0)),
    Part.LineSegment(App.Vector(50, 85, 0), App.Vector(23, 85, 0)),
], False)
sketch11.addConstraint([
    Sketcher.Constraint("Coincident", 0, 2, 1, 1),
    Sketcher.Constraint("Coincident", 1, 2, 2, 1),
    Sketcher.Constraint("Coincident", 2, 2, 3, 1),
    Sketcher.Constraint("Coincident", 3, 2, 0, 1),
    Sketcher.Constraint("Vertical", 0),
    Sketcher.Constraint("Horizontal", 1),
    Sketcher.Constraint("Vertical", 2),
    Sketcher.Constraint("Horizontal", 3),
    Sketcher.Constraint("DistanceX", 1, 1, 1, 2, 27.0),
    Sketcher.Constraint("DistanceY", 0, 2, 0, 1, 66.0),
    Sketcher.Constraint("DistanceY", -1, 1, 0, 2, 19.0),
    Sketcher.Constraint("DistanceX", -1, 1, 0, 2, 22.7),
])
pocket5 = doc.addObject("PartDesign::Pocket", "Pocket004")
body.addObject(pocket5)
pocket5.Profile = sketch11
pocket5.Length = 10

# Sketch on XZ plane
sketch12 = doc.addObject("Sketcher::SketchObject", "Sketch011")
body.addObject(sketch12)
sketch12.AttachmentSupport = (doc.XZ_Plane, [""])
sketch12.MapMode = "FlatFace"
sketch12.addGeometry([
    Part.Circle(App.Vector(-161, 141, 0), App.Vector(0, 0, 1), 1.7),  # 0
    Part.Circle(App.Vector(-161, 181, 0), App.Vector(0, 0, 1), 1.7),  # 1
    Part.Circle(App.Vector(-161, 104, 0), App.Vector(0, 0, 1), 1.7),  # 2
    Part.Circle(App.Vector(-161, 64, 0), App.Vector(0, 0, 1), 1.7),  # 3
    Part.Circle(App.Vector(-104, 64, 0), App.Vector(0, 0, 1), 1.7),  # 4
    Part.Circle(App.Vector(-64, 64, 0), App.Vector(0, 0, 1), 1.7),  # 5
], False)
sketch12.addConstraint([
    Sketcher.Constraint("Equal", 0, 1),
    Sketcher.Constraint("Equal", 1, 2),
    Sketcher.Constraint("Equal", 2, 3),
    Sketcher.Constraint("Equal", 3, 4),
    Sketcher.Constraint("Equal", 4, 5),
    Sketcher.Constraint("Horizontal", 3, 3, 4, 3),
    Sketcher.Constraint("Horizontal", 4, 3, 5, 3),
    Sketcher.Constraint("Vertical", 0, 3, 1, 3),
    Sketcher.Constraint("Vertical", 1, 3, 2, 3),
    Sketcher.Constraint("Vertical", 2, 3, 3, 3),
    Sketcher.Constraint("Diameter", 0, 3.429),
    Sketcher.Constraint("DistanceX", 0, 3, -1, 1, 161.0),
    Sketcher.Constraint("DistanceY", -1, 1, 0, 3, 141.0),
    Sketcher.Constraint("DistanceY", -1, 1, 1, 3, 181.0),
    Sketcher.Constraint("DistanceY", -1, 1, 2, 3, 104.0),
    Sketcher.Constraint("DistanceY", -1, 1, 3, 3, 64.0),
    Sketcher.Constraint("DistanceX", 4, 3, -1, 1, 104.0),
    Sketcher.Constraint("DistanceX", 5, 3, -1, 1, 64.0),
])
doc.recompute()
hole5 = doc.addObject("PartDesign::Hole", "Hole004")
body.addObject(hole5)
hole5.Profile = sketch12
hole5.ThreadType = "None"
hole5.Diameter = 3.429
hole5.DepthType = "ThroughAll"
hole5.HoleCutType = "Counterbore"
hole5.HoleCutDiameter = 6
hole5.HoleCutDepth = 4

# Sketch on XY plane
sketch13 = doc.addObject("Sketcher::SketchObject", "Sketch012")
body.addObject(sketch13)
sketch13.AttachmentSupport = (doc.XY_Plane, [""])
sketch13.MapMode = "FlatFace"
sketch13.AttachmentOffset = App.Placement(App.Vector(0, 0, 4), App.Rotation())
sketch13.addGeometry([
    Part.LineSegment(App.Vector(-4, 113, 0), App.Vector(-221, 113, 0)),
    Part.LineSegment(App.Vector(-221, 113, 0), App.Vector(-221, 108, 0)),
    Part.LineSegment(App.Vector(-221, 108, 0), App.Vector(-4, 108, 0)),
    Part.LineSegment(App.Vector(-4, 108, 0), App.Vector(-4, 113, 0)),
], False)
sketch13.addConstraint([
    Sketcher.Constraint("Coincident", 0, 2, 1, 1),
    Sketcher.Constraint("Coincident", 1, 2, 2, 1),
    Sketcher.Constraint("Coincident", 2, 2, 3, 1),
    Sketcher.Constraint("Coincident", 3, 2, 0, 1),
    Sketcher.Constraint("Horizontal", 0),
    Sketcher.Constraint("Vertical", 1),
    Sketcher.Constraint("Horizontal", 2),
    Sketcher.Constraint("Vertical", 3),
    Sketcher.Constraint("DistanceY", 1, 2, 1, 1, 5.0),
    Sketcher.Constraint("DistanceX", 0, 2, 0, 1, 217.0),
    Sketcher.Constraint("DistanceX", 0, 2, -1, 1, 221.0),
    Sketcher.Constraint("DistanceY", -1, 1, 0, 2, 112.7),
])
pad3 = doc.addObject("PartDesign::Pad", "Pad002")
body.addObject(pad3)
pad3.Profile = sketch13
pad3.Length = 10

# Sketch on YZ plane
sketch14 = doc.addObject("Sketcher::SketchObject", "Sketch013")
body.addObject(sketch14)
sketch14.AttachmentSupport = (doc.YZ_Plane, [""])
sketch14.MapMode = "FlatFace"
sketch14.AttachmentOffset = App.Placement(App.Vector(0, 0, -221), App.Rotation())
sketch14.addGeometry([
    Part.LineSegment(App.Vector(113, 14, 0), App.Vector(113, 221, 0)),
    Part.LineSegment(App.Vector(113, 221, 0), App.Vector(108, 221, 0)),
    Part.LineSegment(App.Vector(108, 221, 0), App.Vector(108, 14, 0)),
    Part.LineSegment(App.Vector(108, 14, 0), App.Vector(113, 14, 0)),
], False)
sketch14.addConstraint([
    Sketcher.Constraint("Coincident", 0, 2, 1, 1),
    Sketcher.Constraint("Coincident", 1, 2, 2, 1),
    Sketcher.Constraint("Coincident", 2, 2, 3, 1),
    Sketcher.Constraint("Coincident", 3, 2, 0, 1),
    Sketcher.Constraint("Vertical", 0),
    Sketcher.Constraint("Horizontal", 1),
    Sketcher.Constraint("Vertical", 2),
    Sketcher.Constraint("Horizontal", 3),
    Sketcher.Constraint("DistanceX", 1, 2, 1, 1, 5.0),
    Sketcher.Constraint("DistanceY", 0, 1, 0, 2, 207.0),
    Sketcher.Constraint("DistanceY", -1, 1, 0, 2, 221.0),
    Sketcher.Constraint("DistanceX", -1, 1, 0, 2, 112.7),
])
pad4 = doc.addObject("PartDesign::Pad", "Pad003")
body.addObject(pad4)
pad4.Profile = sketch14
pad4.Length = 10

# Sketch on XY plane
sketch15 = doc.addObject("Sketcher::SketchObject", "Sketch014")
body.addObject(sketch15)
sketch15.AttachmentSupport = (doc.XY_Plane, [""])
sketch15.MapMode = "FlatFace"
sketch15.AttachmentOffset = App.Placement(App.Vector(0, 0, 221), App.Rotation())
sketch15.addGeometry([
    Part.LineSegment(App.Vector(-211, 113, 0), App.Vector(-4, 113, 0)),
    Part.LineSegment(App.Vector(-4, 113, 0), App.Vector(-4, 108, 0)),
    Part.LineSegment(App.Vector(-4, 108, 0), App.Vector(-211, 108, 0)),
    Part.LineSegment(App.Vector(-211, 108, 0), App.Vector(-211, 113, 0)),
], False)
sketch15.addConstraint([
    Sketcher.Constraint("Coincident", 0, 2, 1, 1),
    Sketcher.Constraint("Coincident", 1, 2, 2, 1),
    Sketcher.Constraint("Coincident", 2, 2, 3, 1),
    Sketcher.Constraint("Coincident", 3, 2, 0, 1),
    Sketcher.Constraint("Horizontal", 0),
    Sketcher.Constraint("Vertical", 1),
    Sketcher.Constraint("Horizontal", 2),
    Sketcher.Constraint("Vertical", 3),
    Sketcher.Constraint("DistanceY", 1, 2, 1, 1, 5.0),
    Sketcher.Constraint("DistanceX", 0, 1, 0, 2, 207.0),
    Sketcher.Constraint("DistanceX", 0, 2, -1, 1, 4.0),
    Sketcher.Constraint("DistanceY", -1, 1, 0, 2, 112.7),
])
pad5 = doc.addObject("PartDesign::Pad", "Pad004")
body.addObject(pad5)
pad5.Profile = sketch15
pad5.Length = 10
pad5.Reversed = True

# Sketch on YZ plane
sketch16 = doc.addObject("Sketcher::SketchObject", "Sketch015")
body.addObject(sketch16)
sketch16.AttachmentSupport = (doc.YZ_Plane, [""])
sketch16.MapMode = "FlatFace"
sketch16.AttachmentOffset = App.Placement(App.Vector(0, 0, -4), App.Rotation())
sketch16.addGeometry([
    Part.LineSegment(App.Vector(113, 211, 0), App.Vector(113, 14, 0)),
    Part.LineSegment(App.Vector(113, 14, 0), App.Vector(108, 14, 0)),
    Part.LineSegment(App.Vector(108, 14, 0), App.Vector(108, 211, 0)),
    Part.LineSegment(App.Vector(108, 211, 0), App.Vector(113, 211, 0)),
], False)
sketch16.addConstraint([
    Sketcher.Constraint("Coincident", 0, 2, 1, 1),
    Sketcher.Constraint("Coincident", 1, 2, 2, 1),
    Sketcher.Constraint("Coincident", 2, 2, 3, 1),
    Sketcher.Constraint("Coincident", 3, 2, 0, 1),
    Sketcher.Constraint("Vertical", 0),
    Sketcher.Constraint("Horizontal", 1),
    Sketcher.Constraint("Vertical", 2),
    Sketcher.Constraint("Horizontal", 3),
    Sketcher.Constraint("DistanceX", 1, 2, 1, 1, 5.0),
    Sketcher.Constraint("DistanceY", 0, 2, 0, 1, 197.0),
    Sketcher.Constraint("DistanceY", -1, 1, 0, 2, 14.0),
    Sketcher.Constraint("DistanceX", -1, 1, 0, 2, 112.7),
])
pad6 = doc.addObject("PartDesign::Pad", "Pad005")
body.addObject(pad6)
pad6.Profile = sketch16
pad6.Length = 10
pad6.Reversed = True

# Sketch on XZ plane
sketch17 = doc.addObject("Sketcher::SketchObject", "Sketch016")
body.addObject(sketch17)
sketch17.AttachmentSupport = (doc.XZ_Plane, [""])
sketch17.MapMode = "FlatFace"
sketch17.AttachmentOffset = App.Placement(App.Vector(0, 0, -112.7), App.Rotation())
sketch17.addGeometry([
    Part.Circle(App.Vector(-7.5, 7.5, 0), App.Vector(0, 0, 1), 1.7),
    Part.Circle(App.Vector(-217.5, 7.5, 0), App.Vector(0, 0, 1), 1.7),
    Part.Circle(App.Vector(-217.5, 217.5, 0), App.Vector(0, 0, 1), 1.7),
    Part.Circle(App.Vector(-7.5, 217.5, 0), App.Vector(0, 0, 1), 1.7),
], False)
sketch17.addConstraint([
    Sketcher.Constraint("Equal", 0, 1),
    Sketcher.Constraint("Equal", 1, 2),
    Sketcher.Constraint("Equal", 2, 3),
    Sketcher.Constraint("Horizontal", 0, 3, 1, 3),
    Sketcher.Constraint("Horizontal", 2, 3, 3, 3),
    Sketcher.Constraint("Vertical", 1, 3, 2, 3),
    Sketcher.Constraint("Vertical", 0, 3, 3, 3),
    Sketcher.Constraint("Diameter", 0, 3.302),
    Sketcher.Constraint("DistanceX", 1, 3, 0, 3, 210.0),
    Sketcher.Constraint("DistanceY", 1, 3, 2, 3, 210.0),
    Sketcher.Constraint("DistanceX", 0, 3, -1, 1, 7.5),
    Sketcher.Constraint("DistanceY", -1, 1, 0, 3, 7.5),
])
doc.recompute()
hole6 = doc.addObject("PartDesign::Hole", "Hole005")
body.addObject(hole6)
hole6.Profile = sketch17
hole6.ThreadType = "None"
hole6.Diameter = 3.302
hole6.DepthType = "Dimension"
hole6.Depth = 12.3
hole6.DrillPoint = "Flat"
hole6.Reversed = True

# Sketch on XZ plane
sketch18 = doc.addObject("Sketcher::SketchObject", "Sketch017")
body.addObject(sketch18)
sketch18.AttachmentSupport = (doc.XZ_Plane, [""])
sketch18.MapMode = "FlatFace"
sketch18.AttachmentOffset = App.Placement(App.Vector(0, 0, -12.7), App.Rotation())
sketch18.addGeometry([
    Part.Circle(App.Vector(-60, 40, 0), App.Vector(0, 0, 1), 2.9),  # 0
    Part.Circle(App.Vector(-90, 40, 0), App.Vector(0, 0, 1), 2.9),  # 1
    Part.Circle(App.Vector(-130, 165, 0), App.Vector(0, 0, 1), 2.9),  # 2
    Part.Circle(App.Vector(-130, 135, 0), App.Vector(0, 0, 1), 2.9),  # 3
    Part.Circle(App.Vector(-130, 105, 0), App.Vector(0, 0, 1), 2.9),  # 4
], False)
sketch18.addConstraint([
    Sketcher.Constraint("Equal", 0, 1),
    Sketcher.Constraint("Equal", 1, 2),
    Sketcher.Constraint("Equal", 2, 3),
    Sketcher.Constraint("Equal", 3, 4),
    Sketcher.Constraint("Horizontal", 0, 3, 1, 3),
    Sketcher.Constraint("Vertical", 2, 3, 3, 3),
    Sketcher.Constraint("Vertical", 3, 3, 4, 3),
    Sketcher.Constraint("Diameter", 0, 5.75),
    Sketcher.Constraint("DistanceX", 0, 3, -1, 1, 60.0),
    Sketcher.Constraint("DistanceY", -1, 1, 0, 3, 40.0),
    Sketcher.Constraint("DistanceX", 1, 3, -1, 1, 90.0),
    Sketcher.Constraint("DistanceX", 2, 3, -1, 1, 130.0),
    Sketcher.Constraint("DistanceY", -1, 1, 2, 3, 165.0),
    Sketcher.Constraint("DistanceY", -1, 1, 3, 3, 135.0),
    Sketcher.Constraint("DistanceY", -1, 1, 4, 3, 105.0),
])
doc.recompute()
hole7 = doc.addObject("PartDesign::Hole", "Hole006")
body.addObject(hole7)
hole7.Profile = sketch18
hole7.ThreadType = "None"
hole7.Diameter = 5.75
hole7.DepthType = "Dimension"
hole7.Depth = 10.979
hole7.DrillPoint = "Flat"
hole7.Reversed = True

doc.recompute()
